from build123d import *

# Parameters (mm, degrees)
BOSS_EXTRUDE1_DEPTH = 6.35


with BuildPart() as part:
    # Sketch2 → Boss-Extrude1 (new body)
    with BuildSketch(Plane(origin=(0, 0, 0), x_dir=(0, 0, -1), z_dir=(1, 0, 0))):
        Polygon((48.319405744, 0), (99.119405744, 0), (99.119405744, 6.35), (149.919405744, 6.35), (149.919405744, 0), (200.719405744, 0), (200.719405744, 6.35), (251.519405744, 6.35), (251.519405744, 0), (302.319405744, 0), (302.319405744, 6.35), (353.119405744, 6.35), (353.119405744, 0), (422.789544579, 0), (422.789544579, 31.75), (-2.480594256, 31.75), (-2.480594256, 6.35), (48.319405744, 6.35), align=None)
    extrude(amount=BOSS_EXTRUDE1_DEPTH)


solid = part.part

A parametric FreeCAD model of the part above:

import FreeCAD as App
import Part
import Sketcher
Q = App.Units.Quantity


def add_polygon(sketch, points):
    """Adds a closed chain of lines whose ends are joined by coincident constraints."""
    first, n = sketch.GeometryCount, len(points)
    for a, b in zip(points, points[1:] + points[:1]):
        sketch.addGeometry(Part.LineSegment(App.Vector(*a, 0), App.Vector(*b, 0)), False)
    for i in range(n):
        sketch.addConstraint(Sketcher.Constraint("Coincident", first + i, 2, first + (i + 1) % n, 1))

doc = App.newDocument("Part")
body = doc.addObject("PartDesign::Body", "Body")

# Sketch on YZ plane
sketch1 = body.newObject("Sketcher::SketchObject", "Sketch")
sketch1.AttachmentSupport = (doc.getObject("YZ_Plane"), [""])
sketch1.MapMode = "FlatFace"
add_polygon(sketch1, [(0, -48), (0, -99), (6, -99), (6, -150), (0, -150), (0, -201), (6, -201), (6, -252), (0, -252), (0, -302), (6, -302), (6, -353), (0, -353), (0, -423), (32, -423), (32, 2), (6, 2), (6, -48)])  # lines 0-17
sketch1.addConstraint([
    Sketcher.Constraint("Vertical", 0),
    Sketcher.Constraint("Horizontal", 1),
    Sketcher.Constraint("Vertical", 2),
    Sketcher.Constraint("Horizontal", 3),
    Sketcher.Constraint("Vertical", 4),
    Sketcher.Constraint("Horizontal", 5),
    Sketcher.Constraint("Vertical", 6),
    Sketcher.Constraint("Horizontal", 7),
    Sketcher.Constraint("Vertical", 8),
    Sketcher.Constraint("Horizontal", 9),
    Sketcher.Constraint("Vertical", 10),
    Sketcher.Constraint("Horizontal", 11),
    Sketcher.Constraint("Vertical", 12),
    Sketcher.Constraint("Horizontal", 13),
    Sketcher.Constraint("Vertical", 14),
    Sketcher.Constraint("Horizontal", 15),
    Sketcher.Constraint("Vertical", 16),
    Sketcher.Constraint("Horizontal", 17),
    Sketcher.Constraint("PointOnObject", 0, 2, -2),
    Sketcher.Constraint("PointOnObject", 3, 2, -2),
    Sketcher.Constraint("PointOnObject", 7, 2, -2),
    Sketcher.Constraint("PointOnObject", 11, 2, -2),
    Sketcher.Constraint("Vertical", 2, 2, 5, 2),
    Sketcher.Constraint("Vertical", 6, 2, 9, 2),
    Sketcher.Constraint("Vertical", 10, 2, 15, 2),
    Sketcher.Constraint("Equal", 0, 2),
    Sketcher.Constraint("Equal", 2, 4),
    Sketcher.Constraint("Equal", 4, 6),
    Sketcher.Constraint("Equal", 6, 8),
    Sketcher.Constraint("Equal", 8, 10),
    Sketcher.Constraint("Equal", 10, 16),
    Sketcher.Constraint("DistanceX", 15, 2, 15, 1, Q("1 in")),
    Sketcher.Constraint("DistanceY", 0, 2, 0, 1, Q("2 in")),
    Sketcher.Constraint("DistanceX", 1, 1, 1, 2, Q("0.25 in")),
    Sketcher.Constraint("DistanceY", 12, 2, 12, 1, 69.670139),
    Sketcher.Constraint("DistanceY", 0, 2, -1, 1, 99.119406),
])
pad1 = body.newObject("PartDesign::Pad", "Pad")
pad1.Profile = sketch1
pad1.Length = Q("0.25 in")

doc.recompute()
